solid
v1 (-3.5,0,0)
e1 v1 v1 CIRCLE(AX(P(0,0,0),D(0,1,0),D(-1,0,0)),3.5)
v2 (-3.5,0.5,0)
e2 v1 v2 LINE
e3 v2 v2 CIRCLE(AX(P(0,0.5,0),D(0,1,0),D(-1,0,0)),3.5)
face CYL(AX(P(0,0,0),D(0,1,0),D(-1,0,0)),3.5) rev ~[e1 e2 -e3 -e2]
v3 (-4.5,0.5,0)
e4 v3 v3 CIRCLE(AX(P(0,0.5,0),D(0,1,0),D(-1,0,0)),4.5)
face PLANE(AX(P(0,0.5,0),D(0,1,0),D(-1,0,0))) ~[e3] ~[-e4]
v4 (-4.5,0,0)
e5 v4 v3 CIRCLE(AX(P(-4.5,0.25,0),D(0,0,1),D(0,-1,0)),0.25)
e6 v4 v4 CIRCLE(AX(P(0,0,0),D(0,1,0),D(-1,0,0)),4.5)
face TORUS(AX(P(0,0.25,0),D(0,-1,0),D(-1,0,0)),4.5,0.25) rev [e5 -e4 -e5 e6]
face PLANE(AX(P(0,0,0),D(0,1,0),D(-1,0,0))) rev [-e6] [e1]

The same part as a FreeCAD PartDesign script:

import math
import FreeCAD as App
import Part
import Sketcher

doc = App.newDocument("Part")
params = doc.addObject("Spreadsheet::Sheet", "Params")
for row, (alias, value) in enumerate([
    ("sketch1_width", "1 mm"),
    ("sketch1_radius", "0.25 mm"),
    ("revolution_angle", "360 deg"),
], start=1):
    params.set(f"A{row}", alias)
    params.set(f"B{row}", "=" + value)
    params.setAlias(f"B{row}", alias)

body = doc.addObject("PartDesign::Body", "Body")

sketch1 = body.newObject("Sketcher::SketchObject", "Sketch")
sketch1.AttachmentSupport = (doc.getObject("XY_Plane"), [""])
sketch1.MapMode = "FlatFace"
sketch1.addGeometry([
    Part.LineSegment(App.Vector(-4.5, 0, 0), App.Vector(-3.5, 0, 0)),
    Part.LineSegment(App.Vector(-3.5, 0, 0), App.Vector(-3.5, 0.5, 0)),
    Part.LineSegment(App.Vector(-3.5, 0.5, 0), App.Vector(-4.5, 0.5, 0)),
    Part.ArcOfCircle(Part.Circle(App.Vector(-4.5, 0.25, 0), App.Vector(0, 0, 1), 0.25), math.radians(-90), math.radians(90)),
], False)
sketch1.addConstraint([
    Sketcher.Constraint("Coincident", 0, 2, 1, 1),
    Sketcher.Constraint("Coincident", 1, 2, 2, 1),
    Sketcher.Constraint("Tangent", 2, 2, 3, 2),
    Sketcher.Constraint("Tangent", 3, 1, 0, 1),
    Sketcher.Constraint("Horizontal", 0),
    Sketcher.Constraint("Vertical", 1),
    Sketcher.Constraint("Horizontal", 2),
    Sketcher.Constraint("PointOnObject", 0, 2, -1),
    Sketcher.Constraint("DistanceX", 0, 1, 0, 2, 1.0),
    Sketcher.Constraint("Radius", 3, 0.25),
    Sketcher.Constraint("DistanceX", 0, 2, -1, 1, 3.5),
])
sketch1.setExpression("Constraints[8]", "Params.sketch1_width")
sketch1.setExpression("Constraints[9]", "Params.sketch1_radius")
revolution = body.newObject("PartDesign::Revolution", "Revolution")
revolution.Profile = sketch1
revolution.ReferenceAxis = (sketch1, ["V_Axis"])
revolution.setExpression("Angle", "Params.revolution_angle")

doc.recompute()
